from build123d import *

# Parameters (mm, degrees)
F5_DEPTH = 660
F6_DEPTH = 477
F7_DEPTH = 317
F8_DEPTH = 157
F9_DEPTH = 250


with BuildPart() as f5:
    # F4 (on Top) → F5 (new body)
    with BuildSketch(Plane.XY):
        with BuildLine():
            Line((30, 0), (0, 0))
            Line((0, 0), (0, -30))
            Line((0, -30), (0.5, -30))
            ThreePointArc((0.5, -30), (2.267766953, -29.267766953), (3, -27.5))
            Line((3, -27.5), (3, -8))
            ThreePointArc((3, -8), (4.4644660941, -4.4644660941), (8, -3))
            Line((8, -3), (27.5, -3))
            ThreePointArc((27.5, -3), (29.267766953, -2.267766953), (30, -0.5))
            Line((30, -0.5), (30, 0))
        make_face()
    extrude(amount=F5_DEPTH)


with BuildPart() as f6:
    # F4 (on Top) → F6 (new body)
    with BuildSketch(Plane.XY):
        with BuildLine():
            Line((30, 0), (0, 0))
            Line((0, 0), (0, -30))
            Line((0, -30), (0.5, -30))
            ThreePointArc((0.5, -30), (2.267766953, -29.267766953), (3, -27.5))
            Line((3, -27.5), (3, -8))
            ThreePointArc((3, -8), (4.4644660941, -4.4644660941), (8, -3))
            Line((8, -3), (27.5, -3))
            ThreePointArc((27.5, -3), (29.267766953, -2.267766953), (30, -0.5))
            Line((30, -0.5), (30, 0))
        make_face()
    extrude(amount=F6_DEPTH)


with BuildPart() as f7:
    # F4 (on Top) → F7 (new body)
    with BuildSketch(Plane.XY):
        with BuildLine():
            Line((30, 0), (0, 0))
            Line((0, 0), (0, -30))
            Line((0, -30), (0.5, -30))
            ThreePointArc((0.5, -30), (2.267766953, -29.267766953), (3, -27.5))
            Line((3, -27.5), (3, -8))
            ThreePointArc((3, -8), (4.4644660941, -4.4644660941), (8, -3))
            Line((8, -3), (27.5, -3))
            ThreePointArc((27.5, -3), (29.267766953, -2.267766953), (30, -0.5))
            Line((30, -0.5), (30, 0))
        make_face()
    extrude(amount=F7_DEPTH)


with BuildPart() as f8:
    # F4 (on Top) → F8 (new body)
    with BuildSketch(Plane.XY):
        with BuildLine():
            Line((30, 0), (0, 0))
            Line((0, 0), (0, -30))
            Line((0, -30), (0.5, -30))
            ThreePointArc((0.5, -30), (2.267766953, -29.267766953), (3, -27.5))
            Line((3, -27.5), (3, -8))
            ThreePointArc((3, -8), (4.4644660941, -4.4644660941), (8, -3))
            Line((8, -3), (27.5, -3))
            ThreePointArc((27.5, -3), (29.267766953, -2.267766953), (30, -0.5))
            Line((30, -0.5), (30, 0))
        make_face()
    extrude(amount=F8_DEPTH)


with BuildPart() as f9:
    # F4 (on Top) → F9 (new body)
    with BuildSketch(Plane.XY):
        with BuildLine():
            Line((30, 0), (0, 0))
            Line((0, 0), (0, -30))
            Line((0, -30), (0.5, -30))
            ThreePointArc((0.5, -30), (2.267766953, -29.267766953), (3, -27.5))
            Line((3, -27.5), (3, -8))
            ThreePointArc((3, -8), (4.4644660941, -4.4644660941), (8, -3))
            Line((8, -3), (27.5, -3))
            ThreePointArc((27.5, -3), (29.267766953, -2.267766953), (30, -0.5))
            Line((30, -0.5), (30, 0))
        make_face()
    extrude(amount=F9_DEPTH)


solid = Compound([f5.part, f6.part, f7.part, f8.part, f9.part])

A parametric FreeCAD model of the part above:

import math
import FreeCAD as App
import Part
import Sketcher
Q = App.Units.Quantity

doc = App.newDocument("Part")
params = doc.addObject("Spreadsheet::Sheet", "Params")
for row, (alias, value) in enumerate([
    ("sketch1_radius", "5 mm"),
    ("sketch1_radius2", "2.5 mm"),
    ("sketch1_width", "30 mm"),
    ("sketch1_width2", "0.5 mm"),
    ("pad1_length", "660 mm"),
    ("sketch2_radius", "5 mm"),
    ("sketch2_radius2", "2.5 mm"),
    ("sketch2_width", "30 mm"),
    ("sketch2_width2", "0.5 mm"),
    ("pad2_length", "477 mm"),
    ("sketch3_radius", "5 mm"),
    ("sketch3_radius2", "2.5 mm"),
    ("sketch3_width", "30 mm"),
    ("sketch3_width2", "0.5 mm"),
    ("pad3_length", "317 mm"),
    ("sketch4_radius", "5 mm"),
    ("sketch4_radius2", "2.5 mm"),
    ("sketch4_width", "30 mm"),
    ("sketch4_width2", "0.5 mm"),
    ("pad4_length", "157 mm"),
    ("sketch5_radius", "5 mm"),
    ("sketch5_radius2", "2.5 mm"),
    ("sketch5_width", "30 mm"),
    ("sketch5_width2", "0.5 mm"),
    ("pad5_length", "250 mm"),
], start=1):
    params.set(f"A{row}", alias)
    params.set(f"B{row}", "=" + value)
    params.setAlias(f"B{row}", alias)

body = doc.addObject("PartDesign::Body", "Body")

sketch1 = doc.addObject("Sketcher::SketchObject", "Sketch")
body.addObject(sketch1)
sketch1.AttachmentSupport = (doc.XY_Plane, [""])
sketch1.MapMode = "FlatFace"
sketch1.addGeometry(Part.LineSegment(App.Vector(30, 0, 0), App.Vector(0, 0, 0)), False)
sketch1.addGeometry(Part.LineSegment(App.Vector(0, 0, 0), App.Vector(0, -30, 0)), False)
sketch1.addGeometry(Part.LineSegment(App.Vector(0, -30, 0), App.Vector(0.5, -30, 0)), False)
sketch1.addGeometry(Part.ArcOfCircle(Part.Circle(App.Vector(0.5, -27.5, 0), App.Vector(0, 0, 1), 2.5), math.radians(-90), math.radians(0)), False)
sketch1.addGeometry(Part.LineSegment(App.Vector(3, -27.5, 0), App.Vector(3, -8, 0)), False)
sketch1.addGeometry(Part.ArcOfCircle(Part.Circle(App.Vector(8, -8, 0), App.Vector(0, 0, 1), 5), math.radians(90), math.radians(180)), False)
sketch1.addGeometry(Part.LineSegment(App.Vector(8, -3, 0), App.Vector(27.5, -3, 0)), False)
sketch1.addGeometry(Part.ArcOfCircle(Part.Circle(App.Vector(27.5, -0.5, 0), App.Vector(0, 0, 1), 2.5), math.radians(-90), math.radians(0)), False)
sketch1.addGeometry(Part.LineSegment(App.Vector(30, -0.5, 0), App.Vector(30, 0, 0)), False)
sketch1.addConstraint(Sketcher.Constraint("Coincident", 0, 2, 1, 1))
sketch1.addConstraint(Sketcher.Constraint("Coincident", 1, 2, 2, 1))
sketch1.addConstraint(Sketcher.Constraint("Tangent", 2, 2, 3, 1))
sketch1.addConstraint(Sketcher.Constraint("Tangent", 3, 2, 4, 1))
sketch1.addConstraint(Sketcher.Constraint("Tangent", 4, 2, 5, 2))
sketch1.addConstraint(Sketcher.Constraint("Tangent", 5, 1, 6, 1))
sketch1.addConstraint(Sketcher.Constraint("Tangent", 6, 2, 7, 1))
sketch1.addConstraint(Sketcher.Constraint("Tangent", 7, 2, 8, 1))
sketch1.addConstraint(Sketcher.Constraint("Coincident", 8, 2, 0, 1))
sketch1.addConstraint(Sketcher.Constraint("Horizontal", 0))
sketch1.addConstraint(Sketcher.Constraint("Vertical", 1))
sketch1.addConstraint(Sketcher.Constraint("Horizontal", 2))
sketch1.addConstraint(Sketcher.Constraint("Vertical", 4))
sketch1.addConstraint(Sketcher.Constraint("Horizontal", 6))
sketch1.addConstraint(Sketcher.Constraint("Vertical", 8))
sketch1.addConstraint(Sketcher.Constraint("Coincident", 0, 2, -1, 1))
sketch1.addConstraint(Sketcher.Constraint("Equal", 3, 7))
sketch1.addConstraint(Sketcher.Constraint("Equal", 0, 1))
sketch1.addConstraint(Sketcher.Constraint("Equal", 6, 4))
sketch1.addConstraint(Sketcher.Constraint("Radius", 5, Q("5 mm")))
sketch1.addConstraint(Sketcher.Constraint("Radius", 3, Q("2.5 mm")))
sketch1.addConstraint(Sketcher.Constraint("DistanceX", 0, 2, 0, 1, Q("30 mm")))
sketch1.addConstraint(Sketcher.Constraint("DistanceX", 2, 1, 2, 2, Q("0.5 mm")))
sketch1.setExpression("Constraints[19]", "Params.sketch1_radius")
sketch1.setExpression("Constraints[20]", "Params.sketch1_radius2")
sketch1.setExpression("Constraints[21]", "Params.sketch1_width")
sketch1.setExpression("Constraints[22]", "Params.sketch1_width2")
pad1 = doc.addObject("PartDesign::Pad", "Pad")
body.addObject(pad1)
pad1.Profile = sketch1
pad1.setExpression("Length", "Params.pad1_length")
body2 = doc.addObject("PartDesign::Body", "Body001")

sketch2 = doc.addObject("Sketcher::SketchObject", "Sketch001")
body2.addObject(sketch2)
sketch2.AttachmentSupport = (doc.getObject("XY_Plane001"), [""])
sketch2.MapMode = "FlatFace"
sketch2.addGeometry(Part.LineSegment(App.Vector(30, 0, 0), App.Vector(0, 0, 0)), False)
sketch2.addGeometry(Part.LineSegment(App.Vector(0, 0, 0), App.Vector(0, -30, 0)), False)
sketch2.addGeometry(Part.LineSegment(App.Vector(0, -30, 0), App.Vector(0.5, -30, 0)), False)
sketch2.addGeometry(Part.ArcOfCircle(Part.Circle(App.Vector(0.5, -27.5, 0), App.Vector(0, 0, 1), 2.5), math.radians(-90), math.radians(0)), False)
sketch2.addGeometry(Part.LineSegment(App.Vector(3, -27.5, 0), App.Vector(3, -8, 0)), False)
sketch2.addGeometry(Part.ArcOfCircle(Part.Circle(App.Vector(8, -8, 0), App.Vector(0, 0, 1), 5), math.radians(90), math.radians(180)), False)
sketch2.addGeometry(Part.LineSegment(App.Vector(8, -3, 0), App.Vector(27.5, -3, 0)), False)
sketch2.addGeometry(Part.ArcOfCircle(Part.Circle(App.Vector(27.5, -0.5, 0), App.Vector(0, 0, 1), 2.5), math.radians(-90), math.radians(0)), False)
sketch2.addGeometry(Part.LineSegment(App.Vector(30, -0.5, 0), App.Vector(30, 0, 0)), False)
sketch2.addConstraint(Sketcher.Constraint("Coincident", 0, 2, 1, 1))
sketch2.addConstraint(Sketcher.Constraint("Coincident", 1, 2, 2, 1))
sketch2.addConstraint(Sketcher.Constraint("Tangent", 2, 2, 3, 1))
sketch2.addConstraint(Sketcher.Constraint("Tangent", 3, 2, 4, 1))
sketch2.addConstraint(Sketcher.Constraint("Tangent", 4, 2, 5, 2))
sketch2.addConstraint(Sketcher.Constraint("Tangent", 5, 1, 6, 1))
sketch2.addConstraint(Sketcher.Constraint("Tangent", 6, 2, 7, 1))
sketch2.addConstraint(Sketcher.Constraint("Tangent", 7, 2, 8, 1))
sketch2.addConstraint(Sketcher.Constraint("Coincident", 8, 2, 0, 1))
sketch2.addConstraint(Sketcher.Constraint("Horizontal", 0))
sketch2.addConstraint(Sketcher.Constraint("Vertical", 1))
sketch2.addConstraint(Sketcher.Constraint("Horizontal", 2))
sketch2.addConstraint(Sketcher.Constraint("Vertical", 4))
sketch2.addConstraint(Sketcher.Constraint("Horizontal", 6))
sketch2.addConstraint(Sketcher.Constraint("Vertical", 8))
sketch2.addConstraint(Sketcher.Constraint("Coincident", 0, 2, -1, 1))
sketch2.addConstraint(Sketcher.Constraint("Equal", 3, 7))
sketch2.addConstraint(Sketcher.Constraint("Equal", 0, 1))
sketch2.addConstraint(Sketcher.Constraint("Equal", 6, 4))
sketch2.addConstraint(Sketcher.Constraint("Radius", 5, Q("5 mm")))
sketch2.addConstraint(Sketcher.Constraint("Radius", 3, Q("2.5 mm")))
sketch2.addConstraint(Sketcher.Constraint("DistanceX", 0, 2, 0, 1, Q("30 mm")))
sketch2.addConstraint(Sketcher.Constraint("DistanceX", 2, 1, 2, 2, Q("0.5 mm")))
sketch2.setExpression("Constraints[19]", "Params.sketch2_radius")
sketch2.setExpression("Constraints[20]", "Params.sketch2_radius2")
sketch2.setExpression("Constraints[21]", "Params.sketch2_width")
sketch2.setExpression("Constraints[22]", "Params.sketch2_width2")
pad2 = doc.addObject("PartDesign::Pad", "Pad001")
body2.addObject(pad2)
pad2.Profile = sketch2
pad2.setExpression("Length", "Params.pad2_length")
body3 = doc.addObject("PartDesign::Body", "Body002")

sketch3 = doc.addObject("Sketcher::SketchObject", "Sketch002")
body3.addObject(sketch3)
sketch3.AttachmentSupport = (doc.getObject("XY_Plane002"), [""])
sketch3.MapMode = "FlatFace"
sketch3.addGeometry(Part.LineSegment(App.Vector(30, 0, 0), App.Vector(0, 0, 0)), False)
sketch3.addGeometry(Part.LineSegment(App.Vector(0, 0, 0), App.Vector(0, -30, 0)), False)
sketch3.addGeometry(Part.LineSegment(App.Vector(0, -30, 0), App.Vector(0.5, -30, 0)), False)
sketch3.addGeometry(Part.ArcOfCircle(Part.Circle(App.Vector(0.5, -27.5, 0), App.Vector(0, 0, 1), 2.5), math.radians(-90), math.radians(0)), False)
sketch3.addGeometry(Part.LineSegment(App.Vector(3, -27.5, 0), App.Vector(3, -8, 0)), False)
sketch3.addGeometry(Part.ArcOfCircle(Part.Circle(App.Vector(8, -8, 0), App.Vector(0, 0, 1), 5), math.radians(90), math.radians(180)), False)
sketch3.addGeometry(Part.LineSegment(App.Vector(8, -3, 0), App.Vector(27.5, -3, 0)), False)
sketch3.addGeometry(Part.ArcOfCircle(Part.Circle(App.Vector(27.5, -0.5, 0), App.Vector(0, 0, 1), 2.5), math.radians(-90), math.radians(0)), False)
sketch3.addGeometry(Part.LineSegment(App.Vector(30, -0.5, 0), App.Vector(30, 0, 0)), False)
sketch3.addConstraint(Sketcher.Constraint("Coincident", 0, 2, 1, 1))
sketch3.addConstraint(Sketcher.Constraint("Coincident", 1, 2, 2, 1))
sketch3.addConstraint(Sketcher.Constraint("Tangent", 2, 2, 3, 1))
sketch3.addConstraint(Sketcher.Constraint("Tangent", 3, 2, 4, 1))
sketch3.addConstraint(Sketcher.Constraint("Tangent", 4, 2, 5, 2))
sketch3.addConstraint(Sketcher.Constraint("Tangent", 5, 1, 6, 1))
sketch3.addConstraint(Sketcher.Constraint("Tangent", 6, 2, 7, 1))
sketch3.addConstraint(Sketcher.Constraint("Tangent", 7, 2, 8, 1))
sketch3.addConstraint(Sketcher.Constraint("Coincident", 8, 2, 0, 1))
sketch3.addConstraint(Sketcher.Constraint("Horizontal", 0))
sketch3.addConstraint(Sketcher.Constraint("Vertical", 1))
sketch3.addConstraint(Sketcher.Constraint("Horizontal", 2))
sketch3.addConstraint(Sketcher.Constraint("Vertical", 4))
sketch3.addConstraint(Sketcher.Constraint("Horizontal", 6))
sketch3.addConstraint(Sketcher.Constraint("Vertical", 8))
sketch3.addConstraint(Sketcher.Constraint("Coincident", 0, 2, -1, 1))
sketch3.addConstraint(Sketcher.Constraint("Equal", 3, 7))
sketch3.addConstraint(Sketcher.Constraint("Equal", 0, 1))
sketch3.addConstraint(Sketcher.Constraint("Equal", 6, 4))
sketch3.addConstraint(Sketcher.Constraint("Radius", 5, Q("5 mm")))
sketch3.addConstraint(Sketcher.Constraint("Radius", 3, Q("2.5 mm")))
sketch3.addConstraint(Sketcher.Constraint("DistanceX", 0, 2, 0, 1, Q("30 mm")))
sketch3.addConstraint(Sketcher.Constraint("DistanceX", 2, 1, 2, 2, Q("0.5 mm")))
sketch3.setExpression("Constraints[19]", "Params.sketch3_radius")
sketch3.setExpression("Constraints[20]", "Params.sketch3_radius2")
sketch3.setExpression("Constraints[21]", "Params.sketch3_width")
sketch3.setExpression("Constraints[22]", "Params.sketch3_width2")
pad3 = doc.addObject("PartDesign::Pad", "Pad002")
body3.addObject(pad3)
pad3.Profile = sketch3
pad3.setExpression("Length", "Params.pad3_length")
body4 = doc.addObject("PartDesign::Body", "Body003")

sketch4 = doc.addObject("Sketcher::SketchObject", "Sketch003")
body4.addObject(sketch4)
sketch4.AttachmentSupport = (doc.getObject("XY_Plane003"), [""])
sketch4.MapMode = "FlatFace"
sketch4.addGeometry(Part.LineSegment(App.Vector(30, 0, 0), App.Vector(0, 0, 0)), False)
sketch4.addGeometry(Part.LineSegment(App.Vector(0, 0, 0), App.Vector(0, -30, 0)), False)
sketch4.addGeometry(Part.LineSegment(App.Vector(0, -30, 0), App.Vector(0.5, -30, 0)), False)
sketch4.addGeometry(Part.ArcOfCircle(Part.Circle(App.Vector(0.5, -27.5, 0), App.Vector(0, 0, 1), 2.5), math.radians(-90), math.radians(0)), False)
sketch4.addGeometry(Part.LineSegment(App.Vector(3, -27.5, 0), App.Vector(3, -8, 0)), False)
sketch4.addGeometry(Part.ArcOfCircle(Part.Circle(App.Vector(8, -8, 0), App.Vector(0, 0, 1), 5), math.radians(90), math.radians(180)), False)
sketch4.addGeometry(Part.LineSegment(App.Vector(8, -3, 0), App.Vector(27.5, -3, 0)), False)
sketch4.addGeometry(Part.ArcOfCircle(Part.Circle(App.Vector(27.5, -0.5, 0), App.Vector(0, 0, 1), 2.5), math.radians(-90), math.radians(0)), False)
sketch4.addGeometry(Part.LineSegment(App.Vector(30, -0.5, 0), App.Vector(30, 0, 0)), False)
sketch4.addConstraint(Sketcher.Constraint("Coincident", 0, 2, 1, 1))
sketch4.addConstraint(Sketcher.Constraint("Coincident", 1, 2, 2, 1))
sketch4.addConstraint(Sketcher.Constraint("Tangent", 2, 2, 3, 1))
sketch4.addConstraint(Sketcher.Constraint("Tangent", 3, 2, 4, 1))
sketch4.addConstraint(Sketcher.Constraint("Tangent", 4, 2, 5, 2))
sketch4.addConstraint(Sketcher.Constraint("Tangent", 5, 1, 6, 1))
sketch4.addConstraint(Sketcher.Constraint("Tangent", 6, 2, 7, 1))
sketch4.addConstraint(Sketcher.Constraint("Tangent", 7, 2, 8, 1))
sketch4.addConstraint(Sketcher.Constraint("Coincident", 8, 2, 0, 1))
sketch4.addConstraint(Sketcher.Constraint("Horizontal", 0))
sketch4.addConstraint(Sketcher.Constraint("Vertical", 1))
sketch4.addConstraint(Sketcher.Constraint("Horizontal", 2))
sketch4.addConstraint(Sketcher.Constraint("Vertical", 4))
sketch4.addConstraint(Sketcher.Constraint("Horizontal", 6))
sketch4.addConstraint(Sketcher.Constraint("Vertical", 8))
sketch4.addConstraint(Sketcher.Constraint("Coincident", 0, 2, -1, 1))
sketch4.addConstraint(Sketcher.Constraint("Equal", 3, 7))
sketch4.addConstraint(Sketcher.Constraint("Equal", 0, 1))
sketch4.addConstraint(Sketcher.Constraint("Equal", 6, 4))
sketch4.addConstraint(Sketcher.Constraint("Radius", 5, Q("5 mm")))
sketch4.addConstraint(Sketcher.Constraint("Radius", 3, Q("2.5 mm")))
sketch4.addConstraint(Sketcher.Constraint("DistanceX", 0, 2, 0, 1, Q("30 mm")))
sketch4.addConstraint(Sketcher.Constraint("DistanceX", 2, 1, 2, 2, Q("0.5 mm")))
sketch4.setExpression("Constraints[19]", "Params.sketch4_radius")
sketch4.setExpression("Constraints[20]", "Params.sketch4_radius2")
sketch4.setExpression("Constraints[21]", "Params.sketch4_width")
sketch4.setExpression("Constraints[22]", "Params.sketch4_width2")
pad4 = doc.addObject("PartDesign::Pad", "Pad003")
body4.addObject(pad4)
pad4.Profile = sketch4
pad4.setExpression("Length", "Params.pad4_length")
body5 = doc.addObject("PartDesign::Body", "Body004")

sketch5 = doc.addObject("Sketcher::SketchObject", "Sketch004")
body5.addObject(sketch5)
sketch5.AttachmentSupport = (doc.getObject("XY_Plane004"), [""])
sketch5.MapMode = "FlatFace"
sketch5.addGeometry(Part.LineSegment(App.Vector(30, 0, 0), App.Vector(0, 0, 0)), False)
sketch5.addGeometry(Part.LineSegment(App.Vector(0, 0, 0), App.Vector(0, -30, 0)), False)
sketch5.addGeometry(Part.LineSegment(App.Vector(0, -30, 0), App.Vector(0.5, -30, 0)), False)
sketch5.addGeometry(Part.ArcOfCircle(Part.Circle(App.Vector(0.5, -27.5, 0), App.Vector(0, 0, 1), 2.5), math.radians(-90), math.radians(0)), False)
sketch5.addGeometry(Part.LineSegment(App.Vector(3, -27.5, 0), App.Vector(3, -8, 0)), False)
sketch5.addGeometry(Part.ArcOfCircle(Part.Circle(App.Vector(8, -8, 0), App.Vector(0, 0, 1), 5), math.radians(90), math.radians(180)), False)
sketch5.addGeometry(Part.LineSegment(App.Vector(8, -3, 0), App.Vector(27.5, -3, 0)), False)
sketch5.addGeometry(Part.ArcOfCircle(Part.Circle(App.Vector(27.5, -0.5, 0), App.Vector(0, 0, 1), 2.5), math.radians(-90), math.radians(0)), False)
sketch5.addGeometry(Part.LineSegment(App.Vector(30, -0.5, 0), App.Vector(30, 0, 0)), False)
sketch5.addConstraint(Sketcher.Constraint("Coincident", 0, 2, 1, 1))
sketch5.addConstraint(Sketcher.Constraint("Coincident", 1, 2, 2, 1))
sketch5.addConstraint(Sketcher.Constraint("Tangent", 2, 2, 3, 1))
sketch5.addConstraint(Sketcher.Constraint("Tangent", 3, 2, 4, 1))
sketch5.addConstraint(Sketcher.Constraint("Tangent", 4, 2, 5, 2))
sketch5.addConstraint(Sketcher.Constraint("Tangent", 5, 1, 6, 1))
sketch5.addConstraint(Sketcher.Constraint("Tangent", 6, 2, 7, 1))
sketch5.addConstraint(Sketcher.Constraint("Tangent", 7, 2, 8, 1))
sketch5.addConstraint(Sketcher.Constraint("Coincident", 8, 2, 0, 1))
sketch5.addConstraint(Sketcher.Constraint("Horizontal", 0))
sketch5.addConstraint(Sketcher.Constraint("Vertical", 1))
sketch5.addConstraint(Sketcher.Constraint("Horizontal", 2))
sketch5.addConstraint(Sketcher.Constraint("Vertical", 4))
sketch5.addConstraint(Sketcher.Constraint("Horizontal", 6))
sketch5.addConstraint(Sketcher.Constraint("Vertical", 8))
sketch5.addConstraint(Sketcher.Constraint("Coincident", 0, 2, -1, 1))
sketch5.addConstraint(Sketcher.Constraint("Equal", 3, 7))
sketch5.addConstraint(Sketcher.Constraint("Equal", 0, 1))
sketch5.addConstraint(Sketcher.Constraint("Equal", 6, 4))
sketch5.addConstraint(Sketcher.Constraint("Radius", 5, Q("5 mm")))
sketch5.addConstraint(Sketcher.Constraint("Radius", 3, Q("2.5 mm")))
sketch5.addConstraint(Sketcher.Constraint("DistanceX", 0, 2, 0, 1, Q("30 mm")))
sketch5.addConstraint(Sketcher.Constraint("DistanceX", 2, 1, 2, 2, Q("0.5 mm")))
sketch5.setExpression("Constraints[19]", "Params.sketch5_radius")
sketch5.setExpression("Constraints[20]", "Params.sketch5_radius2")
sketch5.setExpression("Constraints[21]", "Params.sketch5_width")
sketch5.setExpression("Constraints[22]", "Params.sketch5_width2")
pad5 = doc.addObject("PartDesign::Pad", "Pad004")
body5.addObject(pad5)
pad5.Profile = sketch5
pad5.setExpression("Length", "Params.pad5_length")

doc.recompute()
